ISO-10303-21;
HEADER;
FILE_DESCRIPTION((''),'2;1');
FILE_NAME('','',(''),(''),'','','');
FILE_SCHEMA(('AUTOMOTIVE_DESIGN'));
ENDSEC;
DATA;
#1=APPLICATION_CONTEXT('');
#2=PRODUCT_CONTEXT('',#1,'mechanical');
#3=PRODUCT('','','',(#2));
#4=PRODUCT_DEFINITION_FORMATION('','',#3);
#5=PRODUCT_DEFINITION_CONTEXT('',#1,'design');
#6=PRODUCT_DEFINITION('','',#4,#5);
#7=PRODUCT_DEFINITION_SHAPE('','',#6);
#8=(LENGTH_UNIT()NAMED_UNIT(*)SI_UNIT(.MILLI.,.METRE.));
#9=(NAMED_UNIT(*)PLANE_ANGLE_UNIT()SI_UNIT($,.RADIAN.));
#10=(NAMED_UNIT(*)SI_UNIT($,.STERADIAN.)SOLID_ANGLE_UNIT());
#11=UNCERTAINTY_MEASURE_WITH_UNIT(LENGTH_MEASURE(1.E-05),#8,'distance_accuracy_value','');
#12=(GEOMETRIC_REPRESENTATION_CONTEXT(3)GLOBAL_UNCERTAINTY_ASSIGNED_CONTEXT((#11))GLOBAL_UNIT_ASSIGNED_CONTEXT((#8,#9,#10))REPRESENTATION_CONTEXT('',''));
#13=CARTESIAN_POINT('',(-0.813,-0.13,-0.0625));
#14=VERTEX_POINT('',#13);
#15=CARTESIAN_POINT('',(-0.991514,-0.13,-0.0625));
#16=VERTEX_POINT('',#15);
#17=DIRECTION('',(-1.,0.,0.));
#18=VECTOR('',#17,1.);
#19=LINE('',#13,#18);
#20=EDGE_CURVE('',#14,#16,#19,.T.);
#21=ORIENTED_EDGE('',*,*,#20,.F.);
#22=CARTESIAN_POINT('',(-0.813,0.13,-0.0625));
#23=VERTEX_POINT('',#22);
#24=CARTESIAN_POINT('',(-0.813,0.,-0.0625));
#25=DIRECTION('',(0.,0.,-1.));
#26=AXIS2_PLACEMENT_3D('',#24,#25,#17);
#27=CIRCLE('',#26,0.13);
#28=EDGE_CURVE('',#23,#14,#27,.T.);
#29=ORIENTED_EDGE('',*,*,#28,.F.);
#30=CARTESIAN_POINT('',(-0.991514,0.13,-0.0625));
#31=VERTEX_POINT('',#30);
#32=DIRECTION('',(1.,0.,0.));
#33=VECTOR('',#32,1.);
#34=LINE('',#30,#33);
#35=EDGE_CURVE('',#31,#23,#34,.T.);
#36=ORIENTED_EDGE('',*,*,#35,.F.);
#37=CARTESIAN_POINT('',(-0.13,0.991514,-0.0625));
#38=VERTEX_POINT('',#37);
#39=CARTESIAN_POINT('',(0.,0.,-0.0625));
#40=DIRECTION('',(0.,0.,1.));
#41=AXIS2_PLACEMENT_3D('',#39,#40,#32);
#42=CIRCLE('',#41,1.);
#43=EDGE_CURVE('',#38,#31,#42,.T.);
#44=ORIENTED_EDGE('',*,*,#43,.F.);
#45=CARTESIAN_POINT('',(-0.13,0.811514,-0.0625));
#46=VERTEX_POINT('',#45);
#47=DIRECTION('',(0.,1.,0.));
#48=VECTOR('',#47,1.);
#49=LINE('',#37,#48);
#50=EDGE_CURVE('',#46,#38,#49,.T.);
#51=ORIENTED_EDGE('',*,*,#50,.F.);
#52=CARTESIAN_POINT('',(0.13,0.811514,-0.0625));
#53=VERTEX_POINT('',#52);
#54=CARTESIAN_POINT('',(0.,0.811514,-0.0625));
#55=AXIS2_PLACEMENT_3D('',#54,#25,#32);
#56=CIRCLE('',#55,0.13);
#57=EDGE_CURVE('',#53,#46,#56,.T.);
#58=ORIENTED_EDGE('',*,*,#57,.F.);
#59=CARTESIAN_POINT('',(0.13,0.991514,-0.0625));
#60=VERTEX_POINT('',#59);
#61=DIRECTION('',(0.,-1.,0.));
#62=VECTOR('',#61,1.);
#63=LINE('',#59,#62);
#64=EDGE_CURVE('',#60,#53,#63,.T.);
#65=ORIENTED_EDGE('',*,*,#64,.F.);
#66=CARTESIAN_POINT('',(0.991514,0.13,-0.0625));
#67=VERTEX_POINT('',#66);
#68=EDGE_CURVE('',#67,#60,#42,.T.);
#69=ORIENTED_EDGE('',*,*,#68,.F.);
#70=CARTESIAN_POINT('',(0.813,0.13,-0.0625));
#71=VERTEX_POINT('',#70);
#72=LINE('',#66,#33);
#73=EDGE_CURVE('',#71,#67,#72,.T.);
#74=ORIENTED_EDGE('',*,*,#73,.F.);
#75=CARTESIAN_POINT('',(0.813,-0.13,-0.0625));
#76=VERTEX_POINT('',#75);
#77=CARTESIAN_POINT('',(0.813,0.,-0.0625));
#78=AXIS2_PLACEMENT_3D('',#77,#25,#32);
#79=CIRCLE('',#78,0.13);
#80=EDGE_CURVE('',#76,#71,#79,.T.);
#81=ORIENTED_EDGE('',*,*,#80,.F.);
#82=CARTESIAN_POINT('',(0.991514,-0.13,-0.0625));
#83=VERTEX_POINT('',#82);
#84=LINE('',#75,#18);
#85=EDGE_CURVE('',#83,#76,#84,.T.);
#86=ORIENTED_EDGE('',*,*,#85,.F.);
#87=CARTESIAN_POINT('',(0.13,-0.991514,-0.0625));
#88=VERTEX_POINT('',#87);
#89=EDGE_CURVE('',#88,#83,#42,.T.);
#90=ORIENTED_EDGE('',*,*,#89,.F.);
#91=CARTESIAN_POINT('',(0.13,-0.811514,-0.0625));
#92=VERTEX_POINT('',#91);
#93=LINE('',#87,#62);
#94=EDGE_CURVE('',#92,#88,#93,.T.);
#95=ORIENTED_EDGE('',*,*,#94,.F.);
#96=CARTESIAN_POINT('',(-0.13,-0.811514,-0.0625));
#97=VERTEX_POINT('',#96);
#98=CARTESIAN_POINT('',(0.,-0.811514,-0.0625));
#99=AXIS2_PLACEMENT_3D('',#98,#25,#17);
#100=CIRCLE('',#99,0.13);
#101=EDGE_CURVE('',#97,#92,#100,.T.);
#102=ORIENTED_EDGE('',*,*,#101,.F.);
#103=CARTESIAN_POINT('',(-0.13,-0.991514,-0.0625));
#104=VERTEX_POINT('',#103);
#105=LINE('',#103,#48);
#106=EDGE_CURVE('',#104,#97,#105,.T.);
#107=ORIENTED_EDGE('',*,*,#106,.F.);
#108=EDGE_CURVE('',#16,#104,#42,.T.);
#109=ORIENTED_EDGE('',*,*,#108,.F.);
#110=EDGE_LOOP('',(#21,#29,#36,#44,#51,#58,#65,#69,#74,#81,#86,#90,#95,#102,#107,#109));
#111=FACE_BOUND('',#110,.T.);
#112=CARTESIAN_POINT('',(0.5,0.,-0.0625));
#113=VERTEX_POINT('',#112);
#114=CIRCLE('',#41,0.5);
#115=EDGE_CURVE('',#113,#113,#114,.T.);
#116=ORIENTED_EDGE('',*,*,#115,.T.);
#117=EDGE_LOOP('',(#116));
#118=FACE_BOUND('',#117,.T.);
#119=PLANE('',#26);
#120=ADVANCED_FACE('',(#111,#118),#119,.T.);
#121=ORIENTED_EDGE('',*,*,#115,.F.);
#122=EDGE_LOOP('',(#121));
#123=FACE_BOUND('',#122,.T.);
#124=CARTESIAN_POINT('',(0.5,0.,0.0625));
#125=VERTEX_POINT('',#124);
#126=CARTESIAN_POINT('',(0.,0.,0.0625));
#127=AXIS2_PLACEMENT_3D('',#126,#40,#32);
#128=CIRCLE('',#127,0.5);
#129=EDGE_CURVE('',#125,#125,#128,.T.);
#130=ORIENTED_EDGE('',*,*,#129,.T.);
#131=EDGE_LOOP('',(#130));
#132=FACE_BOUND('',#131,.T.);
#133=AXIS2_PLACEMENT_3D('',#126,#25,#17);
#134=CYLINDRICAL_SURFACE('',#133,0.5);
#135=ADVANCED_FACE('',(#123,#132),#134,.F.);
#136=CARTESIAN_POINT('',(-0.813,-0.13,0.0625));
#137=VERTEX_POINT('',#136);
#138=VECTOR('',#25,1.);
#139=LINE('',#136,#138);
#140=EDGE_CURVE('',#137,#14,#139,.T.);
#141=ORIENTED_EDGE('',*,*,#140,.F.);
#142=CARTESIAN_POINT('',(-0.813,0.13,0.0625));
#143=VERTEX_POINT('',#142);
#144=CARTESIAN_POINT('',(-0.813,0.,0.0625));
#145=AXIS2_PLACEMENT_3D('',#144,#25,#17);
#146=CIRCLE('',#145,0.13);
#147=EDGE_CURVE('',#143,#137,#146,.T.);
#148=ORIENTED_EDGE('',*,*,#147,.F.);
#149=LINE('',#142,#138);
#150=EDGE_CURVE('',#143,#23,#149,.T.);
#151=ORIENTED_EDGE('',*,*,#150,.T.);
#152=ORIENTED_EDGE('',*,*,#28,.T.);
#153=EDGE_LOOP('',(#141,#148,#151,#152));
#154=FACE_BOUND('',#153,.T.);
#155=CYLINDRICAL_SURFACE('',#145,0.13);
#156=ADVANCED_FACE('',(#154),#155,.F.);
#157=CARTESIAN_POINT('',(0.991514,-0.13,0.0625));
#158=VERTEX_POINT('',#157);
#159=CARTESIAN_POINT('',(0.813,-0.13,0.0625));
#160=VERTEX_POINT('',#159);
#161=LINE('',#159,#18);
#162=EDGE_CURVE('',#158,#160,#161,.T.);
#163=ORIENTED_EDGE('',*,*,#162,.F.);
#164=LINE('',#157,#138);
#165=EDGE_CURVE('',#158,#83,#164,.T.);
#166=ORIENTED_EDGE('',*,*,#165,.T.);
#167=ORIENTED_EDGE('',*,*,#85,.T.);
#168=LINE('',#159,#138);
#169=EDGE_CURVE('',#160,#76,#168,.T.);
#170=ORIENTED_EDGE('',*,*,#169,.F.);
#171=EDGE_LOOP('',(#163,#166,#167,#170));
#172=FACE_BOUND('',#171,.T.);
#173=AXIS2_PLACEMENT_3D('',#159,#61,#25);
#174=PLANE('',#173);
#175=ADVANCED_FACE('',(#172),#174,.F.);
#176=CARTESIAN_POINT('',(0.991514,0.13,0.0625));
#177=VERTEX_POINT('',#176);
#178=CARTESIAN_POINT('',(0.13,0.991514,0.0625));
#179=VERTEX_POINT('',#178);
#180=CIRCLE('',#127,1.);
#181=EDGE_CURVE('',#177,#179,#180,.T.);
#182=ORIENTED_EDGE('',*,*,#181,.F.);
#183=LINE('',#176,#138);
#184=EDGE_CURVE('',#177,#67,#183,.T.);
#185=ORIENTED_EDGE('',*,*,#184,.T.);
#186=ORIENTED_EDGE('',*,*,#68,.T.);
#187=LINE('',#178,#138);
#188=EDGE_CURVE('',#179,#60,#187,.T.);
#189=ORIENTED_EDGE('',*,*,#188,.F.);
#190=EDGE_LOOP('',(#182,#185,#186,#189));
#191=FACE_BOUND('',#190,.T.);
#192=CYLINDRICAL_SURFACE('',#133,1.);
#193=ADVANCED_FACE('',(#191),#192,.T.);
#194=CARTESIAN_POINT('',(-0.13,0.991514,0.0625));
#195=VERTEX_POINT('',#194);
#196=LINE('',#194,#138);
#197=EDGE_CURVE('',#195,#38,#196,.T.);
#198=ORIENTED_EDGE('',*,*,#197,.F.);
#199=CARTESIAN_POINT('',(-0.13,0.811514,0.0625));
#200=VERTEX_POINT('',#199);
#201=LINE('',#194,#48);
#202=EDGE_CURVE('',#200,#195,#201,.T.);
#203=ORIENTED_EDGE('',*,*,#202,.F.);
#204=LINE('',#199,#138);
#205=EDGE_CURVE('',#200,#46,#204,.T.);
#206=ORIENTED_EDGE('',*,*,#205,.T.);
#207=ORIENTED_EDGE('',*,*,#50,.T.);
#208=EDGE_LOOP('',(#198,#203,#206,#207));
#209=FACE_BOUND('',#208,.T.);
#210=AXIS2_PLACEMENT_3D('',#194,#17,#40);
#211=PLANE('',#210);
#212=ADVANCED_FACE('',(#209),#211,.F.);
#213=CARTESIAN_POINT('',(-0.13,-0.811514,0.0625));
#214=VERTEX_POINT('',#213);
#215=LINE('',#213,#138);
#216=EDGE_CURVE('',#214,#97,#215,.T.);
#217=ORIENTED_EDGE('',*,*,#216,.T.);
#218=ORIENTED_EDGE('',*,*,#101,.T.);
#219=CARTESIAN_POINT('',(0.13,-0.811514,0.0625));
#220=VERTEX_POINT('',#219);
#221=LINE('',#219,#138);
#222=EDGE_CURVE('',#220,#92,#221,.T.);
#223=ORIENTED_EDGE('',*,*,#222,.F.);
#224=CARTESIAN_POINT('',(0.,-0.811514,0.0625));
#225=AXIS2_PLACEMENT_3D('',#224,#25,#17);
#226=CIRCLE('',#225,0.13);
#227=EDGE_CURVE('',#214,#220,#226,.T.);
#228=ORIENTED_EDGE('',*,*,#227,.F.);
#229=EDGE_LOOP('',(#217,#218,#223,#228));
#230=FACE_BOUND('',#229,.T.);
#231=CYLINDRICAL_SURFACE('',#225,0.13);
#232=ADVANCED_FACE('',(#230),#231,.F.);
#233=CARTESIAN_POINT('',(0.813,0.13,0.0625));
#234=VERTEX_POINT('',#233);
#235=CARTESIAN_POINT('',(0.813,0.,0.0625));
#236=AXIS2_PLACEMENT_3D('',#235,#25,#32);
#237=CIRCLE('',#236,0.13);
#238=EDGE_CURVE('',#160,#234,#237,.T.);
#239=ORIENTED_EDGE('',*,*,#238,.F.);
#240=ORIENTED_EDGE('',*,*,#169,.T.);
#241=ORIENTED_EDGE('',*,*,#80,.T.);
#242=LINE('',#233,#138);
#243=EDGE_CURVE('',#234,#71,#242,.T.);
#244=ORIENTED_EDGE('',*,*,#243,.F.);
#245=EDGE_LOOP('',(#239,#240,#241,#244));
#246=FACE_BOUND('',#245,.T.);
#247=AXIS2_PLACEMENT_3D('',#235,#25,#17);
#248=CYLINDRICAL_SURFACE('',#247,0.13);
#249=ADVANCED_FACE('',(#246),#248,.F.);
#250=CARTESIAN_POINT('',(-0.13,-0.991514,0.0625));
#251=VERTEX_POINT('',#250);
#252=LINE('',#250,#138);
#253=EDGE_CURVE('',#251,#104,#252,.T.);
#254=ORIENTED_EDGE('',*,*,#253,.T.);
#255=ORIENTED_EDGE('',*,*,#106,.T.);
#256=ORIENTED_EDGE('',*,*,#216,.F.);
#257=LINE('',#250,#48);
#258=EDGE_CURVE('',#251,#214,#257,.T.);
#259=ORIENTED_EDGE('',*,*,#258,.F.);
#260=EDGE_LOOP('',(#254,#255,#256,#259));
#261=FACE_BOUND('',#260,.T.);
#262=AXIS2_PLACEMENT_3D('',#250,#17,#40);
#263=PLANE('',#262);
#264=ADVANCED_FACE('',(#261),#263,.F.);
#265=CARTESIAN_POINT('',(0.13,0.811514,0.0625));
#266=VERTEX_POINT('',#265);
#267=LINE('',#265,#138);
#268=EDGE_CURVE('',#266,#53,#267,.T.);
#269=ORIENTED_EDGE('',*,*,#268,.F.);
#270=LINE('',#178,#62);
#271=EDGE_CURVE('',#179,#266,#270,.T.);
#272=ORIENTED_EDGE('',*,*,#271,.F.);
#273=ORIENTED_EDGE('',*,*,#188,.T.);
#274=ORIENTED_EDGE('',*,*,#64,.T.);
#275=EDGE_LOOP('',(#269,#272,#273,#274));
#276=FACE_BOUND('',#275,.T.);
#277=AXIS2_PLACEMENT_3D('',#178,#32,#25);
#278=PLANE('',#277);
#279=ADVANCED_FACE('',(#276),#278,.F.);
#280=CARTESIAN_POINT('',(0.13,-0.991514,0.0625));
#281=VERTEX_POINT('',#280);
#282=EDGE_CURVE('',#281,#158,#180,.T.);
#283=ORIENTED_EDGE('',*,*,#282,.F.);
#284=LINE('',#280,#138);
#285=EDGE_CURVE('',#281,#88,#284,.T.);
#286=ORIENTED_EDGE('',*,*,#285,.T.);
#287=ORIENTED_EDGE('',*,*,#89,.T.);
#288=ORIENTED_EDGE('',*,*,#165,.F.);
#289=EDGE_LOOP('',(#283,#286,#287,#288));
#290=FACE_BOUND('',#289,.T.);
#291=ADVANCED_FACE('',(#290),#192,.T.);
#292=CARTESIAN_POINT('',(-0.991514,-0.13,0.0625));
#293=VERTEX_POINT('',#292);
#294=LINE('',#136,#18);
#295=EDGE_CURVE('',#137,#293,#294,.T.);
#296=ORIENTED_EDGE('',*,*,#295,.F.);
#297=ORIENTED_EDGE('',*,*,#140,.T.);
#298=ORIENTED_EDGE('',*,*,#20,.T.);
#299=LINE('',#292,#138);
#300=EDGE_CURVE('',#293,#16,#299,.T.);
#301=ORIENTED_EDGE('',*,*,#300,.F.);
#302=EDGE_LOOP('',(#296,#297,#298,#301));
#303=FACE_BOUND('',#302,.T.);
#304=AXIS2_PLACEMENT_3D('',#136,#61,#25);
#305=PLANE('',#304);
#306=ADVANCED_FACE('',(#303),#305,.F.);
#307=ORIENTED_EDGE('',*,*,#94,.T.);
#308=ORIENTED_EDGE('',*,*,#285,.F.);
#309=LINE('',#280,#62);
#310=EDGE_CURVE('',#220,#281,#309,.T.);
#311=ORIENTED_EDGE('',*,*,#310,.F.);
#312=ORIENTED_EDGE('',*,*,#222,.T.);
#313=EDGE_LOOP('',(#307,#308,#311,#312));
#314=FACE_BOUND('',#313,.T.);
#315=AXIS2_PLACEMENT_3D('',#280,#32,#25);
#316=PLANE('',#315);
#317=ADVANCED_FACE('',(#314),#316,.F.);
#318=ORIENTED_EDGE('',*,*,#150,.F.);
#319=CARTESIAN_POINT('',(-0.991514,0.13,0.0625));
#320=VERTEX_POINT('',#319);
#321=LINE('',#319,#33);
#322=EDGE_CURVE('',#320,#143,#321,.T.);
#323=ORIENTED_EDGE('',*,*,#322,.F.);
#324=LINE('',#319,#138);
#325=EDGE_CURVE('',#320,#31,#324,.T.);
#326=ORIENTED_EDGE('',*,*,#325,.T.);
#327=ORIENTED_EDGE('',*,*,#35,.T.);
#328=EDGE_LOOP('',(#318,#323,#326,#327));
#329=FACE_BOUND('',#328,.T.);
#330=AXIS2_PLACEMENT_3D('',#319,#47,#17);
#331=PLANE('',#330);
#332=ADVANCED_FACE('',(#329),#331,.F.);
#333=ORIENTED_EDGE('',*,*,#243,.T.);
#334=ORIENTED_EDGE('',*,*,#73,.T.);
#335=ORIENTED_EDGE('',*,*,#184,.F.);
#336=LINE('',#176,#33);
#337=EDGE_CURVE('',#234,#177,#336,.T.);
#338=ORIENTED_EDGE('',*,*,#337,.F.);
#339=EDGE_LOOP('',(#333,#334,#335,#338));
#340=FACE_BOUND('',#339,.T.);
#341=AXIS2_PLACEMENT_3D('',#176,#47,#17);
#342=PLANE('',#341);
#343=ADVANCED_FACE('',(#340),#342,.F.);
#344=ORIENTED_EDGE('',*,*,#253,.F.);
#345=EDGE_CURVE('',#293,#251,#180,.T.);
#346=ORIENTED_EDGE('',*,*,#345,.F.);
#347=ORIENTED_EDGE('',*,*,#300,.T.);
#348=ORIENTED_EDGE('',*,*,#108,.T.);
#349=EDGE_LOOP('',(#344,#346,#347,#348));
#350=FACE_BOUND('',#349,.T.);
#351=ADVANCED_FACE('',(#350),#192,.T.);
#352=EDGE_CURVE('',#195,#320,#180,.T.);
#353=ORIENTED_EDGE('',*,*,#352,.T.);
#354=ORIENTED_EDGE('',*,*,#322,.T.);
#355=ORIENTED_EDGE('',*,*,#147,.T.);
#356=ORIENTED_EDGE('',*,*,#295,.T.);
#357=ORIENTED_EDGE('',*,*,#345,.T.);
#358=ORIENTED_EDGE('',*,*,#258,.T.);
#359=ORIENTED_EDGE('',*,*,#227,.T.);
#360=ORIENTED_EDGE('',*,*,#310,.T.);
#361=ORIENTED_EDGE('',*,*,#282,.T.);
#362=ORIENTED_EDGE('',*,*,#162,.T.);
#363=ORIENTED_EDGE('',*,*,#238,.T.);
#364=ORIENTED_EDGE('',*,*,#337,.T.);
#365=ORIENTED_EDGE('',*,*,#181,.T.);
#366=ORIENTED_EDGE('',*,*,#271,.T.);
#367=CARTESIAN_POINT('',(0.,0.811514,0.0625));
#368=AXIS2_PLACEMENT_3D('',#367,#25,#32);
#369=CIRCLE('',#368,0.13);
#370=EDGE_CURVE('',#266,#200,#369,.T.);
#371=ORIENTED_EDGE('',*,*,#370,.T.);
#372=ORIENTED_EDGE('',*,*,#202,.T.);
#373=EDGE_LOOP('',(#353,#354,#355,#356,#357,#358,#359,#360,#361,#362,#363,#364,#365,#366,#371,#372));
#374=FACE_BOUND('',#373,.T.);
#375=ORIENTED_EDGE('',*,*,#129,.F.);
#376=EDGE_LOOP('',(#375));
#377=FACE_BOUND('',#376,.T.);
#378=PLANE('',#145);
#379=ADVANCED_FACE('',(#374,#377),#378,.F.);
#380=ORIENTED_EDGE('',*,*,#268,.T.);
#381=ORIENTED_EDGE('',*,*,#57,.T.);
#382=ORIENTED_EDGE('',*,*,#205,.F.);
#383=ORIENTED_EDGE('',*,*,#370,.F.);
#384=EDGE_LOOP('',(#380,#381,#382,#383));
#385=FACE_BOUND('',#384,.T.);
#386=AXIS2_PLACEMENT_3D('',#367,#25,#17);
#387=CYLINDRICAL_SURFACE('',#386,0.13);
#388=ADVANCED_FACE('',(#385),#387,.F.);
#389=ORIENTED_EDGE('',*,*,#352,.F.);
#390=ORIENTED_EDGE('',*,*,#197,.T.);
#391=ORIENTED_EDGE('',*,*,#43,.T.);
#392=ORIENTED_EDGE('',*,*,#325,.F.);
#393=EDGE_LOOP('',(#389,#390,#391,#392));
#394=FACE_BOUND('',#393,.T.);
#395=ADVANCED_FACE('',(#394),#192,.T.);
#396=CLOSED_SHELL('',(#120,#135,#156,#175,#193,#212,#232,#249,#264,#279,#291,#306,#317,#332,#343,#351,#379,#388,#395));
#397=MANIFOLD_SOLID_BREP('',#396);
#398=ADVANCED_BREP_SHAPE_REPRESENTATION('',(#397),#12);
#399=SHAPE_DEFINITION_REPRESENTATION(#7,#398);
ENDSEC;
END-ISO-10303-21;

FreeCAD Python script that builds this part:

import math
import FreeCAD as App
import Part
import Sketcher

V = App.Vector

doc = App.newDocument("Part")
body = doc.addObject("PartDesign::Body", "Body")

sketch1 = body.newObject("Sketcher::SketchObject", "Sketch")
sketch1.AttachmentSupport = (doc.getObject("XY_Plane"), [""])
sketch1.MapMode = "FlatFace"
sketch1.addGeometry(Part.LineSegment(V(0.81, 0.13, 0), V(0.99, 0.13, 0)), False)
sketch1.addGeometry(Part.ArcOfCircle(Part.Circle(V(0, 0, 0), V(0, 0, 1), 1), math.radians(7), math.radians(83)), False)
sketch1.addGeometry(Part.LineSegment(V(0.13, 0.99, 0), V(0.13, 0.81, 0)), False)
sketch1.addGeometry(Part.ArcOfCircle(Part.Circle(V(0, 0.81, 0), V(0, 0, 1), 0.13), math.radians(180), math.radians(360)), False)
sketch1.addGeometry(Part.LineSegment(V(-0.13, 0.81, 0), V(-0.13, 0.99, 0)), False)
sketch1.addGeometry(Part.ArcOfCircle(Part.Circle(V(0, 0, 0), V(0, 0, 1), 1), math.radians(97), math.radians(173)), False)
sketch1.addGeometry(Part.LineSegment(V(-0.99, 0.13, 0), V(-0.81, 0.13, 0)), False)
sketch1.addGeometry(Part.ArcOfCircle(Part.Circle(V(-0.81, 0, 0), V(0, 0, 1), 0.13), math.radians(-90), math.radians(90)), False)
sketch1.addGeometry(Part.LineSegment(V(-0.81, -0.13, 0), V(-0.99, -0.13, 0)), False)
sketch1.addGeometry(Part.ArcOfCircle(Part.Circle(V(0, 0, 0), V(0, 0, 1), 1), math.radians(-173), math.radians(-97)), False)
sketch1.addGeometry(Part.LineSegment(V(-0.13, -0.99, 0), V(-0.13, -0.81, 0)), False)
sketch1.addGeometry(Part.ArcOfCircle(Part.Circle(V(0, -0.81, 0), V(0, 0, 1), 0.13), math.radians(0), math.radians(180)), False)
sketch1.addGeometry(Part.LineSegment(V(0.13, -0.81, 0), V(0.13, -0.99, 0)), False)
sketch1.addGeometry(Part.ArcOfCircle(Part.Circle(V(0, 0, 0), V(0, 0, 1), 1), math.radians(-83), math.radians(-7)), False)
sketch1.addGeometry(Part.LineSegment(V(0.99, -0.13, 0), V(0.81, -0.13, 0)), False)
sketch1.addGeometry(Part.ArcOfCircle(Part.Circle(V(0.81, 0, 0), V(0, 0, 1), 0.13), math.radians(90), math.radians(270)), False)
sketch1.addGeometry(Part.Circle(V(0, 0, 0), V(0, 0, 1), 0.5), False)
sketch1.addConstraint(Sketcher.Constraint("Coincident", 0, 2, 1, 1))
sketch1.addConstraint(Sketcher.Constraint("Coincident", 1, 2, 2, 1))
sketch1.addConstraint(Sketcher.Constraint("Tangent", 2, 2, 3, 2))
sketch1.addConstraint(Sketcher.Constraint("Tangent", 3, 1, 4, 1))
sketch1.addConstraint(Sketcher.Constraint("Coincident", 4, 2, 5, 1))
sketch1.addConstraint(Sketcher.Constraint("Coincident", 5, 2, 6, 1))
sketch1.addConstraint(Sketcher.Constraint("Tangent", 6, 2, 7, 2))
sketch1.addConstraint(Sketcher.Constraint("Tangent", 7, 1, 8, 1))
sketch1.addConstraint(Sketcher.Constraint("Coincident", 8, 2, 9, 1))
sketch1.addConstraint(Sketcher.Constraint("Coincident", 9, 2, 10, 1))
sketch1.addConstraint(Sketcher.Constraint("Tangent", 10, 2, 11, 2))
sketch1.addConstraint(Sketcher.Constraint("Tangent", 11, 1, 12, 1))
sketch1.addConstraint(Sketcher.Constraint("Coincident", 12, 2, 13, 1))
sketch1.addConstraint(Sketcher.Constraint("Coincident", 13, 2, 14, 1))
sketch1.addConstraint(Sketcher.Constraint("Tangent", 14, 2, 15, 2))
sketch1.addConstraint(Sketcher.Constraint("Tangent", 15, 1, 0, 1))
sketch1.addConstraint(Sketcher.Constraint("Horizontal", 0))
sketch1.addConstraint(Sketcher.Constraint("Vertical", 2))
sketch1.addConstraint(Sketcher.Constraint("Vertical", 4))
sketch1.addConstraint(Sketcher.Constraint("Horizontal", 6))
sketch1.addConstraint(Sketcher.Constraint("Horizontal", 8))
sketch1.addConstraint(Sketcher.Constraint("Vertical", 10))
sketch1.addConstraint(Sketcher.Constraint("Vertical", 12))
sketch1.addConstraint(Sketcher.Constraint("Horizontal", 14))
sketch1.addConstraint(Sketcher.Constraint("Coincident", 1, 3, -1, 1))
sketch1.addConstraint(Sketcher.Constraint("Coincident", 5, 3, -1, 1))
sketch1.addConstraint(Sketcher.Constraint("Coincident", 9, 3, -1, 1))
sketch1.addConstraint(Sketcher.Constraint("Coincident", 13, 3, -1, 1))
sketch1.addConstraint(Sketcher.Constraint("Coincident", 16, 3, -1, 1))
sketch1.addConstraint(Sketcher.Constraint("Equal", 1, 5))
sketch1.addConstraint(Sketcher.Constraint("Equal", 3, 7))
sketch1.addConstraint(Sketcher.Constraint("Equal", 5, 9))
sketch1.addConstraint(Sketcher.Constraint("Equal", 7, 11))
sketch1.addConstraint(Sketcher.Constraint("Equal", 9, 13))
sketch1.addConstraint(Sketcher.Constraint("Equal", 11, 15))
sketch1.addConstraint(Sketcher.Constraint("Symmetric", 3, 3, 11, 3, -1, 1))
sketch1.addConstraint(Sketcher.Constraint("Symmetric", 7, 3, 15, 3, -1, 1))
sketch1.addConstraint(Sketcher.Constraint("PointOnObject", 3, 3, -2))
sketch1.addConstraint(Sketcher.Constraint("PointOnObject", 7, 3, -1))
sketch1.addConstraint(Sketcher.Constraint("Diameter", 16, 1.0))
sketch1.addConstraint(Sketcher.Constraint("Radius", 1, 1.0))
sketch1.addConstraint(Sketcher.Constraint("Radius", 3, 0.13))
sketch1.addConstraint(Sketcher.Constraint("DistanceY", 2, 2, 2, 1, 0.18))
sketch1.addConstraint(Sketcher.Constraint("DistanceX", 7, 3, -1, 1, 0.813))
pad1 = body.newObject("PartDesign::Pad", "Pad")
pad1.Profile = sketch1
pad1.Length = 0.125
pad1.Midplane = True

doc.recompute()
